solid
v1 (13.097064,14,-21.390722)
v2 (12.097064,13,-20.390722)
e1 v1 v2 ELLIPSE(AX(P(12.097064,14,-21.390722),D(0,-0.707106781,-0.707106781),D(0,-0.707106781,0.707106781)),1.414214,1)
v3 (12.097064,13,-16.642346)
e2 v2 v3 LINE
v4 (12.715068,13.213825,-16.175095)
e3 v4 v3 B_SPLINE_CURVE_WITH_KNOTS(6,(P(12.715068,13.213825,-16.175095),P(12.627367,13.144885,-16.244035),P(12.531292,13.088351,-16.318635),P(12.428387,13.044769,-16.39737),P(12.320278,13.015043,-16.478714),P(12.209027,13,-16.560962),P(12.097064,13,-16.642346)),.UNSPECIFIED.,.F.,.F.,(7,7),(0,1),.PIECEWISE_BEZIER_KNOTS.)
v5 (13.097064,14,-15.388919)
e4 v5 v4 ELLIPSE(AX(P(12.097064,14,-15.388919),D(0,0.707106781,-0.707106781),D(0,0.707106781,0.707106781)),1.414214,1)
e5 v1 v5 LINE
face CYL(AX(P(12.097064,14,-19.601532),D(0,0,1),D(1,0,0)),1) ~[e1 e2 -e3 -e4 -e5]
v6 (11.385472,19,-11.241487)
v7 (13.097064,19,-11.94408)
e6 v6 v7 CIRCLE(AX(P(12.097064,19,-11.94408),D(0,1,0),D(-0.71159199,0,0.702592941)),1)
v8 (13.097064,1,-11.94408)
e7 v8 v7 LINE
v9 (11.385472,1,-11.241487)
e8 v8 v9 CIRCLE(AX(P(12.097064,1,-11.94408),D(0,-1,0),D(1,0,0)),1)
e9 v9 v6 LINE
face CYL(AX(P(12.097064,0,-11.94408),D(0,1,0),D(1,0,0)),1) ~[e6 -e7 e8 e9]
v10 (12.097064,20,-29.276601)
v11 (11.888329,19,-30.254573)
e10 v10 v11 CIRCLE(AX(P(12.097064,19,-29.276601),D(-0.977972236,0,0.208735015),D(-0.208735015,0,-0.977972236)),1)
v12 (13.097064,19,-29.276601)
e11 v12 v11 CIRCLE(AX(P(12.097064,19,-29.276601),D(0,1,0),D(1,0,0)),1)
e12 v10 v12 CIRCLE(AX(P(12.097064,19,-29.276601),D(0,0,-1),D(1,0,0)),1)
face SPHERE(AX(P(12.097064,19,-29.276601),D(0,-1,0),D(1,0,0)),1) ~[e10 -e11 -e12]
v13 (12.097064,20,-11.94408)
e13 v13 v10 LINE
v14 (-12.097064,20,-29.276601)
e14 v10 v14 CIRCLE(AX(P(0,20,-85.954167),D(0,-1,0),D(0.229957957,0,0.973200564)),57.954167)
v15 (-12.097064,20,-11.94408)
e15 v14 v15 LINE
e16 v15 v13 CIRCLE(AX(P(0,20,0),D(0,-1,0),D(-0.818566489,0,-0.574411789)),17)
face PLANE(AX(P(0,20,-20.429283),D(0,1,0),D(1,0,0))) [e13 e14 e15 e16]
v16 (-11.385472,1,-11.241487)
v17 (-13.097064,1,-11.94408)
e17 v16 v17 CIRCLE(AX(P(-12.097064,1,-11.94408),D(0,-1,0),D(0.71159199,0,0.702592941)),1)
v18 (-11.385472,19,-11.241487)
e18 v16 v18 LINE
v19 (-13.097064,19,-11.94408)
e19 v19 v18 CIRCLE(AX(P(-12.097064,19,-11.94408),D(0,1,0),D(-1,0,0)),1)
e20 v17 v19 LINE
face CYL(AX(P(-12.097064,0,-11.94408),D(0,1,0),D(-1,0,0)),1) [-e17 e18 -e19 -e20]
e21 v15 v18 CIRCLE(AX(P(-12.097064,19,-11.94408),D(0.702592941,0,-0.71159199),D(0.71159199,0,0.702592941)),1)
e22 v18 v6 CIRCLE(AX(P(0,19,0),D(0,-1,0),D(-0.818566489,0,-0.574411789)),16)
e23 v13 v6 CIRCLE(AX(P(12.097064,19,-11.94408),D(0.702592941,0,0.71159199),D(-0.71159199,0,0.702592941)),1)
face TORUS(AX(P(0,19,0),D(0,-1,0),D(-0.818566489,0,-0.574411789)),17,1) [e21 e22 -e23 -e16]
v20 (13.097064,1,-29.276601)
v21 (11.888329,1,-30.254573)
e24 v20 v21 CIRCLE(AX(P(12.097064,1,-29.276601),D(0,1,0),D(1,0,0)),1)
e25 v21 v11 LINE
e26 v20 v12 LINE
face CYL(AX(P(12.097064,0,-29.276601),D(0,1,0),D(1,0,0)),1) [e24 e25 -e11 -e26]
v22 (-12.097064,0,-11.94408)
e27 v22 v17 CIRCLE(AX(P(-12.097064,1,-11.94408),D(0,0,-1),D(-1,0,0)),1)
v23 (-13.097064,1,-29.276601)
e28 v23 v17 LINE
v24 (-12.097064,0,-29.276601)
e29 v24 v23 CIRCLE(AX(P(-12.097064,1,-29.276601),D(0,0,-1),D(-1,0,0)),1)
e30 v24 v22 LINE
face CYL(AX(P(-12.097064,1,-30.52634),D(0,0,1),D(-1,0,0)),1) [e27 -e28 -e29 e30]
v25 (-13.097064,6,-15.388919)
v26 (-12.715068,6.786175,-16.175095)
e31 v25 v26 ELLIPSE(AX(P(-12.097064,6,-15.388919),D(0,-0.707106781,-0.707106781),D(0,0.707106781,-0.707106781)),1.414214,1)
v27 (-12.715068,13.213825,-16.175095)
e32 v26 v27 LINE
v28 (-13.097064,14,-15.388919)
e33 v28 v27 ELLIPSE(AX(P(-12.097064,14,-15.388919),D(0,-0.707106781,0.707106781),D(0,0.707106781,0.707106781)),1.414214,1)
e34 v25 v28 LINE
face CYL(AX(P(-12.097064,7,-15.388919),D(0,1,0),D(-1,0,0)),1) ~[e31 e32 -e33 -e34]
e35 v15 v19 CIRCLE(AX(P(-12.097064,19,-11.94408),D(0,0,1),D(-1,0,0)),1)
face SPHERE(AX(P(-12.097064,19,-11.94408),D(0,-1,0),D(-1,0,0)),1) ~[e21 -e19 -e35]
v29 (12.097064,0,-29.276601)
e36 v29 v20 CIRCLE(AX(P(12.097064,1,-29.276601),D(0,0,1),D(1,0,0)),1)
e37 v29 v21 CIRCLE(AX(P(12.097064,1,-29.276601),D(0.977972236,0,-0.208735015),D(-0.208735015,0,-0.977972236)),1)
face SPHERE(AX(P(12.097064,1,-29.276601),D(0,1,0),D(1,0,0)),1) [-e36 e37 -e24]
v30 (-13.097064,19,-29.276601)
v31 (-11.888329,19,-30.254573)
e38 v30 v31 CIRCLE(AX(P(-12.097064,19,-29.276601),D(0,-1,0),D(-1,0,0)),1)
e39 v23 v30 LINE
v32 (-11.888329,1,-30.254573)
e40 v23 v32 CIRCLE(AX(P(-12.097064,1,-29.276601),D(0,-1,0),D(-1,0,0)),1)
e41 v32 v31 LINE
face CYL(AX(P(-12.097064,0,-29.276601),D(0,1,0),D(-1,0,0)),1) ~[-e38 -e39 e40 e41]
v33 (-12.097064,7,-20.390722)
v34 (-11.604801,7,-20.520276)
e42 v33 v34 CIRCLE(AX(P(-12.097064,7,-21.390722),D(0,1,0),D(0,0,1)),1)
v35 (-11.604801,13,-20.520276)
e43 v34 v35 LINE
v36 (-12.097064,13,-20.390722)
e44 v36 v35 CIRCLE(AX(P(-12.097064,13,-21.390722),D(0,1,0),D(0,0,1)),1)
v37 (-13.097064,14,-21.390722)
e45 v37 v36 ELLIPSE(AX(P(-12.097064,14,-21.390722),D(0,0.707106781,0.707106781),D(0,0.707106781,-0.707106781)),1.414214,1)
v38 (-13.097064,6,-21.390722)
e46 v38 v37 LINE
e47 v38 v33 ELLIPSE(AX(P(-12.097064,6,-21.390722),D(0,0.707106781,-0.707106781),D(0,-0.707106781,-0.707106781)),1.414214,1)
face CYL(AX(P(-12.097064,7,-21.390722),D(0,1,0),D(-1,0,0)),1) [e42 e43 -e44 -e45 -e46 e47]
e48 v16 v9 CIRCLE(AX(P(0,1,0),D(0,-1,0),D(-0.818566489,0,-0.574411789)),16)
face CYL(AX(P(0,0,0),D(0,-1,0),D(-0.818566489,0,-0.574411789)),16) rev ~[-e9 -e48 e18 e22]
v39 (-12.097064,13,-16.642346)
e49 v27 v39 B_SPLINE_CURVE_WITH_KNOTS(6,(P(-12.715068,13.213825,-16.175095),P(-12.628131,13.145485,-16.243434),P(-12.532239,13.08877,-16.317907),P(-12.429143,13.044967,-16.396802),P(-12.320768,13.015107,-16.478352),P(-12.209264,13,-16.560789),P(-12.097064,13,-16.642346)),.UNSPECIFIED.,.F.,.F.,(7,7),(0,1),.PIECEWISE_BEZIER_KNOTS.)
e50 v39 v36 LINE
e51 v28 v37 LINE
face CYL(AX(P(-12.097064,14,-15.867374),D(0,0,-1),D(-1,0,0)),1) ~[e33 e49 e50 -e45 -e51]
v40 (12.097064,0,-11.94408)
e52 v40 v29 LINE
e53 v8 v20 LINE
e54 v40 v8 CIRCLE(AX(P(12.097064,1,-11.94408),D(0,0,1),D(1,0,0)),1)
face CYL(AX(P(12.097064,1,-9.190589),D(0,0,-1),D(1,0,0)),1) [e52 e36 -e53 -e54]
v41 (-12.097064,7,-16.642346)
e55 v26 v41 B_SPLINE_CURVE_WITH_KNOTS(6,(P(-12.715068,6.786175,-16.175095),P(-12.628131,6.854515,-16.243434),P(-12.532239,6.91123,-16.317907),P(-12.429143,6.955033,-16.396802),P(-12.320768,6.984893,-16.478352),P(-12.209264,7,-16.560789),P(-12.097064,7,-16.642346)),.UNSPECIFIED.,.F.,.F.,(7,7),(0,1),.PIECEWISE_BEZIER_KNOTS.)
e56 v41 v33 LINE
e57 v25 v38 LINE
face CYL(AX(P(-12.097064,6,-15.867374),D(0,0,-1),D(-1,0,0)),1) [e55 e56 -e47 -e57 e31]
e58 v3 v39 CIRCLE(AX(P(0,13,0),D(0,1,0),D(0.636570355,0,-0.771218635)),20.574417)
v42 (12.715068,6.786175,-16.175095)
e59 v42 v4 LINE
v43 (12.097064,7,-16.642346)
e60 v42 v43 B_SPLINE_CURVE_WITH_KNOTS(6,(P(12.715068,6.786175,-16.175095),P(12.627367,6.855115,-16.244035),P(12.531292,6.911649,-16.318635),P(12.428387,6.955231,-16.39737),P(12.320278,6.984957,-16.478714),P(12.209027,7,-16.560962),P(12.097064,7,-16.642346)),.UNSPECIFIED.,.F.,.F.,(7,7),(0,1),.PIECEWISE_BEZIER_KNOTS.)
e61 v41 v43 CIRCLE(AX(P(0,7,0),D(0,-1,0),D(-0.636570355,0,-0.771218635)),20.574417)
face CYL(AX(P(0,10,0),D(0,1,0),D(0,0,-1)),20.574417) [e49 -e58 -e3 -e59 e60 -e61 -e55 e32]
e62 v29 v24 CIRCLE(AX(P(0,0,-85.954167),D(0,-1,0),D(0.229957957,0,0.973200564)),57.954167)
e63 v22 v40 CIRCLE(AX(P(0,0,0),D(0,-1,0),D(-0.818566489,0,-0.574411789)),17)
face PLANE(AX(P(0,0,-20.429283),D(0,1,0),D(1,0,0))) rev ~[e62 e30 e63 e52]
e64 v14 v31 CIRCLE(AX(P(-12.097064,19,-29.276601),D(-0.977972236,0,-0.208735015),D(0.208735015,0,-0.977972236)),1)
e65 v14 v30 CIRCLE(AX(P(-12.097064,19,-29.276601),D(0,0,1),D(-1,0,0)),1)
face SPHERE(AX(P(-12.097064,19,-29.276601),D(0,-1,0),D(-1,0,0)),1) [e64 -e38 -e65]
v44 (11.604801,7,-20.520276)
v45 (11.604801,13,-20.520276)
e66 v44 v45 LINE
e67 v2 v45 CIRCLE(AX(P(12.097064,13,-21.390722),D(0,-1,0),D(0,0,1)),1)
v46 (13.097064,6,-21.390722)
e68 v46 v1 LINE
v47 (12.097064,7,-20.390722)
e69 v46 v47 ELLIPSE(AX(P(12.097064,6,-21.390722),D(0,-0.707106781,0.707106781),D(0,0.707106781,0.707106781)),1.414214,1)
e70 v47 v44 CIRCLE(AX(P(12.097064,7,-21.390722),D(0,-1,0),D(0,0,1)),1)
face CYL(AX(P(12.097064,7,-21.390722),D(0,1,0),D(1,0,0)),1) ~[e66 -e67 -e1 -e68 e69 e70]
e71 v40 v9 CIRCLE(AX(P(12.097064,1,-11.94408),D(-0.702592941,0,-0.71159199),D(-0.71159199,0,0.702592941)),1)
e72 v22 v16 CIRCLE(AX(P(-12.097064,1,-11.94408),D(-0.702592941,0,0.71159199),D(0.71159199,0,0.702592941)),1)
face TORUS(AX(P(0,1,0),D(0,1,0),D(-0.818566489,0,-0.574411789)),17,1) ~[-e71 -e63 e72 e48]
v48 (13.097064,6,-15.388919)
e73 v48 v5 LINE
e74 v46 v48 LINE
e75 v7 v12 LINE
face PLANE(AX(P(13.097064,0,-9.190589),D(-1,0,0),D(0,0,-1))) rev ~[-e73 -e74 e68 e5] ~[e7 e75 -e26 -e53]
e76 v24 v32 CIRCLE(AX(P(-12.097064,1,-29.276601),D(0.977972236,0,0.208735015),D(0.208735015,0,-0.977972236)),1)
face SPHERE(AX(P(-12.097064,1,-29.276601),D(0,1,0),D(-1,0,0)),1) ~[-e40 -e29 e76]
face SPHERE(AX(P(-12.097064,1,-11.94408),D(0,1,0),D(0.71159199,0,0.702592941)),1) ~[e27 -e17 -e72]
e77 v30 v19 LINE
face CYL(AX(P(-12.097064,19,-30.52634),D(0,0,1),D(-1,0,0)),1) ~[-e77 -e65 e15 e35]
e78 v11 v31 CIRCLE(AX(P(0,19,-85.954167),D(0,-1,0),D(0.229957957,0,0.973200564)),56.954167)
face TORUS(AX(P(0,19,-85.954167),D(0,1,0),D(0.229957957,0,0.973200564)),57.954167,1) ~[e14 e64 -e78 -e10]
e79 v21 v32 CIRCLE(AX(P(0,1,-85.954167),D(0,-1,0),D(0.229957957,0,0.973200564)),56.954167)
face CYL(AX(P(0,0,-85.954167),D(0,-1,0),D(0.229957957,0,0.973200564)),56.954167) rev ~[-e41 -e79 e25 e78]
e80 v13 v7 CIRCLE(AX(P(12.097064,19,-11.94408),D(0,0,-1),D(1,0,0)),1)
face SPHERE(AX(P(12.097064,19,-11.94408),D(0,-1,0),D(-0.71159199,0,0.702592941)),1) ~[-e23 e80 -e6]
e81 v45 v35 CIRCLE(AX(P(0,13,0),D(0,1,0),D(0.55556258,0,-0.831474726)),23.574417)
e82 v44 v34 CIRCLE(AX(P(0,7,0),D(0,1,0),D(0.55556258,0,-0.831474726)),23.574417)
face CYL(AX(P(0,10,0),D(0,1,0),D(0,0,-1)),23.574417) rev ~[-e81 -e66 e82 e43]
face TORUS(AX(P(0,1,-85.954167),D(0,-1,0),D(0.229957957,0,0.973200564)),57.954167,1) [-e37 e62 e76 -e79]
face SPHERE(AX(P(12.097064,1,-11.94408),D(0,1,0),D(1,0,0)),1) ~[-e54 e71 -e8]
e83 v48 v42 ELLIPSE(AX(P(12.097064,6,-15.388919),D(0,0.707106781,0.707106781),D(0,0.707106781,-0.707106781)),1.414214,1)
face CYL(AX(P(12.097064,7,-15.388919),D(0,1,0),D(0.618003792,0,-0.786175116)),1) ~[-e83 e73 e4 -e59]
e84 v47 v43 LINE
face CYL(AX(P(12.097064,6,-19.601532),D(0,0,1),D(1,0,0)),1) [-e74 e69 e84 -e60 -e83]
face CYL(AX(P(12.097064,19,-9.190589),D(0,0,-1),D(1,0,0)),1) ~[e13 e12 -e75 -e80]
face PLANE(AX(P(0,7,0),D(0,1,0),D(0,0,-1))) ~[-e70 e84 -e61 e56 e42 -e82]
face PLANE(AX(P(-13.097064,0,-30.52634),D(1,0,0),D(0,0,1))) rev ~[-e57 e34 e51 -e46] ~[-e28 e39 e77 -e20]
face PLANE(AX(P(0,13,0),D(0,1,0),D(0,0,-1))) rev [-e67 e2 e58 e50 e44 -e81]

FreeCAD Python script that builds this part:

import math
import FreeCAD as App
import Part
import Sketcher


def edges_at(feature, points):
    """Names of the edges that pass closest to the given points."""
    edges = feature.Shape.Edges
    near = lambda p: min(range(len(edges)), key=lambda i: edges[i].distToShape(Part.Vertex(*p))[0])
    return sorted({f"Edge{near(p) + 1}" for p in points})

doc = App.newDocument("Part")
body = doc.addObject("PartDesign::Body", "Body")

# Sketch on XZ plane
sketch1 = body.newObject("Sketcher::SketchObject", "Sketch")
sketch1.AttachmentSupport = (doc.getObject("XZ_Plane"), [""])
sketch1.MapMode = "FlatFace"
sketch1.addGeometry(Part.LineSegment(App.Vector(-13, -31, 0), App.Vector(-13, -9, 0)), False)
sketch1.addGeometry(Part.ArcOfCircle(Part.Circle(App.Vector(0, 0, 0), App.Vector(0, 0, 1), 16), math.radians(-145), math.radians(-35)), False)
sketch1.addGeometry(Part.LineSegment(App.Vector(13, -9, 0), App.Vector(13, -31, 0)), False)
sketch1.addGeometry(Part.ArcOfCircle(Part.Circle(App.Vector(0, -86, 0), App.Vector(0, 0, 1), 57), math.radians(77), math.radians(103)), False)
sketch1.addConstraint(Sketcher.Constraint("Coincident", 0, 2, 1, 1))
sketch1.addConstraint(Sketcher.Constraint("Coincident", 1, 2, 2, 1))
sketch1.addConstraint(Sketcher.Constraint("Coincident", 2, 2, 3, 1))
sketch1.addConstraint(Sketcher.Constraint("Coincident", 3, 2, 0, 1))
sketch1.addConstraint(Sketcher.Constraint("Vertical", 0))
sketch1.addConstraint(Sketcher.Constraint("Vertical", 2))
sketch1.addConstraint(Sketcher.Constraint("Coincident", 1, 3, -1, 1))
sketch1.addConstraint(Sketcher.Constraint("Symmetric", 2, 2, 3, 2, -2))
sketch1.addConstraint(Sketcher.Constraint("Radius", 1, 16.0))
sketch1.addConstraint(Sketcher.Constraint("Radius", 3, 56.954167))
sketch1.addConstraint(Sketcher.Constraint("DistanceY", 0, 1, 0, 2, 21.335751))
sketch1.addConstraint(Sketcher.Constraint("DistanceY", 0, 2, -1, 1, 9.190589))
pad1 = body.newObject("PartDesign::Pad", "Pad")
pad1.Profile = sketch1
pad1.Length = 20
pad1.Reversed = True

# Sketch on YZ plane
sketch2 = body.newObject("Sketcher::SketchObject", "Sketch001")
sketch2.AttachmentSupport = (doc.getObject("YZ_Plane"), [""])
sketch2.MapMode = "FlatFace"
sketch2.addGeometry(Part.LineSegment(App.Vector(13, -20.6, 0), App.Vector(7, -20.6, 0)), False)
sketch2.addGeometry(Part.LineSegment(App.Vector(7, -20.6, 0), App.Vector(7, -23.6, 0)), False)
sketch2.addGeometry(Part.LineSegment(App.Vector(7, -23.6, 0), App.Vector(13, -23.6, 0)), False)
sketch2.addGeometry(Part.LineSegment(App.Vector(13, -23.6, 0), App.Vector(13, -20.6, 0)), False)
sketch2.addConstraint(Sketcher.Constraint("Coincident", 0, 2, 1, 1))
sketch2.addConstraint(Sketcher.Constraint("Coincident", 1, 2, 2, 1))
sketch2.addConstraint(Sketcher.Constraint("Coincident", 2, 2, 3, 1))
sketch2.addConstraint(Sketcher.Constraint("Coincident", 3, 2, 0, 1))
sketch2.addConstraint(Sketcher.Constraint("Horizontal", 0))
sketch2.addConstraint(Sketcher.Constraint("Vertical", 1))
sketch2.addConstraint(Sketcher.Constraint("Horizontal", 2))
sketch2.addConstraint(Sketcher.Constraint("Vertical", 3))
sketch2.addConstraint(Sketcher.Constraint("DistanceX", 0, 2, 0, 1, 6.0))
sketch2.addConstraint(Sketcher.Constraint("DistanceY", 1, 2, 1, 1, 3.0))
sketch2.addConstraint(Sketcher.Constraint("DistanceX", -1, 1, 0, 2, 7.0))
sketch2.addConstraint(Sketcher.Constraint("DistanceY", 0, 2, -1, 1, 20.574417))
groove = body.newObject("PartDesign::Groove", "Groove")
groove.Profile = sketch2
groove.ReferenceAxis = (sketch2, ["H_Axis"])
groove.Angle = 360
doc.recompute()

fillet = body.newObject("PartDesign::Fillet", "Fillet")
fillet.Base = (groove, edges_at(groove, [
    (0, 20, -16),
    (13.097, 13, -17.734),
    (13.097, 10, -19.602),
    (13.097, 7, -17.734),
    (13.097, 10, -15.867),
    (13.097, 20, -19.858),
    (-13.097, 10, -15.867),
    (-13.097, 7, -17.734),
    (-13.097, 10, -19.602),
    (-13.097, 13, -17.734),
    (0, 20, -29),
    (13.097, 0, -19.858),
    (0, 0, -16),
    (-13.097, 0, -19.858),
    (0, 0, -29),
    (13.097, 10, -30.526),
    (13.097, 10, -9.191),
    (-13.097, 10, -9.191),
    (-13.097, 10, -30.526),
    (-13.097, 20, -19.858),
]))
fillet.Radius = 1

doc.recompute()
